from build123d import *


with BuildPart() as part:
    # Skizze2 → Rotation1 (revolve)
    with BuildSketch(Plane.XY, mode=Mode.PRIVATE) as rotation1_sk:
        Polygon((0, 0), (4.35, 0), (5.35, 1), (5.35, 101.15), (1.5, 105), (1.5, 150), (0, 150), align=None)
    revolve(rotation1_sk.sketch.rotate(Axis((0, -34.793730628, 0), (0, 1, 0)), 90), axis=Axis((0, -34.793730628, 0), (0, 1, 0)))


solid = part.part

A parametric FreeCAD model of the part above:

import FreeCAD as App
import Part
import Sketcher
from FreeCAD import Vector
Q = App.Units.Quantity


def add_polygon(sketch, points):
    """Adds a closed chain of lines whose ends are joined by coincident constraints."""
    first, n = sketch.GeometryCount, len(points)
    for a, b in zip(points, points[1:] + points[:1]):
        sketch.addGeometry(Part.LineSegment(App.Vector(*a, 0), App.Vector(*b, 0)), False)
    for i in range(n):
        sketch.addConstraint(Sketcher.Constraint("Coincident", first + i, 2, first + (i + 1) % n, 1))

doc = App.newDocument("Part")
params = doc.addObject("Spreadsheet::Sheet", "Params")
for row, (alias, value) in enumerate([
    ("sketch1_height", "45 mm"),
    ("sketch1_height2", "150 mm"),
    ("sketch1_width", "1.5 mm"),
    ("sketch1_width2", "4.35 mm"),
    ("revolution_angle", "360 deg"),
], start=1):
    params.set(f"A{row}", alias)
    params.set(f"B{row}", "=" + value)
    params.setAlias(f"B{row}", alias)

body = doc.addObject("PartDesign::Body", "Body")

sketch1 = body.newObject("Sketcher::SketchObject", "Sketch")
sketch1.AttachmentSupport = (doc.getObject("XY_Plane"), [""])
sketch1.MapMode = "FlatFace"
add_polygon(sketch1, [(0, 0), (4.3, 0), (5.3, 1), (5.3, 101.2), (1.5, 105), (1.5, 150), (0, 150)])
sketch1.addConstraint(Sketcher.Constraint("Horizontal", 0))
sketch1.addConstraint(Sketcher.Constraint("Vertical", 2))
sketch1.addConstraint(Sketcher.Constraint("Vertical", 4))
sketch1.addConstraint(Sketcher.Constraint("Horizontal", 5))
sketch1.addConstraint(Sketcher.Constraint("Vertical", 6))
sketch1.addConstraint(Sketcher.Constraint("Coincident", 6, 2, -1, 1))
sketch1.addConstraint(Sketcher.Constraint("Perpendicular", 1, 3))
sketch1.addConstraint(Sketcher.Constraint("DistanceY", 4, 1, 4, 2, 45.0))
sketch1.addConstraint(Sketcher.Constraint("DistanceY", 6, 2, 6, 1, 150.0))
sketch1.addConstraint(Sketcher.Constraint("Angle", 1, Q("45 deg")))
sketch1.addConstraint(Sketcher.Constraint("DistanceX", 5, 2, 5, 1, 1.5))
sketch1.addConstraint(Sketcher.Constraint("DistanceY", -1, 1, 1, 2, 1.0))
sketch1.addConstraint(Sketcher.Constraint("DistanceX", 0, 1, 0, 2, 4.35))
sketch1.setExpression("Constraints[14]", "Params.sketch1_height")
sketch1.setExpression("Constraints[15]", "Params.sketch1_height2")
sketch1.setExpression("Constraints[17]", "Params.sketch1_width")
sketch1.setExpression("Constraints[19]", "Params.sketch1_width2")
revolution = body.newObject("PartDesign::Revolution", "Revolution")
revolution.Profile = sketch1
revolution.ReferenceAxis = (sketch1, ["V_Axis"])
revolution.setExpression("Angle", "Params.revolution_angle")

doc.recompute()
